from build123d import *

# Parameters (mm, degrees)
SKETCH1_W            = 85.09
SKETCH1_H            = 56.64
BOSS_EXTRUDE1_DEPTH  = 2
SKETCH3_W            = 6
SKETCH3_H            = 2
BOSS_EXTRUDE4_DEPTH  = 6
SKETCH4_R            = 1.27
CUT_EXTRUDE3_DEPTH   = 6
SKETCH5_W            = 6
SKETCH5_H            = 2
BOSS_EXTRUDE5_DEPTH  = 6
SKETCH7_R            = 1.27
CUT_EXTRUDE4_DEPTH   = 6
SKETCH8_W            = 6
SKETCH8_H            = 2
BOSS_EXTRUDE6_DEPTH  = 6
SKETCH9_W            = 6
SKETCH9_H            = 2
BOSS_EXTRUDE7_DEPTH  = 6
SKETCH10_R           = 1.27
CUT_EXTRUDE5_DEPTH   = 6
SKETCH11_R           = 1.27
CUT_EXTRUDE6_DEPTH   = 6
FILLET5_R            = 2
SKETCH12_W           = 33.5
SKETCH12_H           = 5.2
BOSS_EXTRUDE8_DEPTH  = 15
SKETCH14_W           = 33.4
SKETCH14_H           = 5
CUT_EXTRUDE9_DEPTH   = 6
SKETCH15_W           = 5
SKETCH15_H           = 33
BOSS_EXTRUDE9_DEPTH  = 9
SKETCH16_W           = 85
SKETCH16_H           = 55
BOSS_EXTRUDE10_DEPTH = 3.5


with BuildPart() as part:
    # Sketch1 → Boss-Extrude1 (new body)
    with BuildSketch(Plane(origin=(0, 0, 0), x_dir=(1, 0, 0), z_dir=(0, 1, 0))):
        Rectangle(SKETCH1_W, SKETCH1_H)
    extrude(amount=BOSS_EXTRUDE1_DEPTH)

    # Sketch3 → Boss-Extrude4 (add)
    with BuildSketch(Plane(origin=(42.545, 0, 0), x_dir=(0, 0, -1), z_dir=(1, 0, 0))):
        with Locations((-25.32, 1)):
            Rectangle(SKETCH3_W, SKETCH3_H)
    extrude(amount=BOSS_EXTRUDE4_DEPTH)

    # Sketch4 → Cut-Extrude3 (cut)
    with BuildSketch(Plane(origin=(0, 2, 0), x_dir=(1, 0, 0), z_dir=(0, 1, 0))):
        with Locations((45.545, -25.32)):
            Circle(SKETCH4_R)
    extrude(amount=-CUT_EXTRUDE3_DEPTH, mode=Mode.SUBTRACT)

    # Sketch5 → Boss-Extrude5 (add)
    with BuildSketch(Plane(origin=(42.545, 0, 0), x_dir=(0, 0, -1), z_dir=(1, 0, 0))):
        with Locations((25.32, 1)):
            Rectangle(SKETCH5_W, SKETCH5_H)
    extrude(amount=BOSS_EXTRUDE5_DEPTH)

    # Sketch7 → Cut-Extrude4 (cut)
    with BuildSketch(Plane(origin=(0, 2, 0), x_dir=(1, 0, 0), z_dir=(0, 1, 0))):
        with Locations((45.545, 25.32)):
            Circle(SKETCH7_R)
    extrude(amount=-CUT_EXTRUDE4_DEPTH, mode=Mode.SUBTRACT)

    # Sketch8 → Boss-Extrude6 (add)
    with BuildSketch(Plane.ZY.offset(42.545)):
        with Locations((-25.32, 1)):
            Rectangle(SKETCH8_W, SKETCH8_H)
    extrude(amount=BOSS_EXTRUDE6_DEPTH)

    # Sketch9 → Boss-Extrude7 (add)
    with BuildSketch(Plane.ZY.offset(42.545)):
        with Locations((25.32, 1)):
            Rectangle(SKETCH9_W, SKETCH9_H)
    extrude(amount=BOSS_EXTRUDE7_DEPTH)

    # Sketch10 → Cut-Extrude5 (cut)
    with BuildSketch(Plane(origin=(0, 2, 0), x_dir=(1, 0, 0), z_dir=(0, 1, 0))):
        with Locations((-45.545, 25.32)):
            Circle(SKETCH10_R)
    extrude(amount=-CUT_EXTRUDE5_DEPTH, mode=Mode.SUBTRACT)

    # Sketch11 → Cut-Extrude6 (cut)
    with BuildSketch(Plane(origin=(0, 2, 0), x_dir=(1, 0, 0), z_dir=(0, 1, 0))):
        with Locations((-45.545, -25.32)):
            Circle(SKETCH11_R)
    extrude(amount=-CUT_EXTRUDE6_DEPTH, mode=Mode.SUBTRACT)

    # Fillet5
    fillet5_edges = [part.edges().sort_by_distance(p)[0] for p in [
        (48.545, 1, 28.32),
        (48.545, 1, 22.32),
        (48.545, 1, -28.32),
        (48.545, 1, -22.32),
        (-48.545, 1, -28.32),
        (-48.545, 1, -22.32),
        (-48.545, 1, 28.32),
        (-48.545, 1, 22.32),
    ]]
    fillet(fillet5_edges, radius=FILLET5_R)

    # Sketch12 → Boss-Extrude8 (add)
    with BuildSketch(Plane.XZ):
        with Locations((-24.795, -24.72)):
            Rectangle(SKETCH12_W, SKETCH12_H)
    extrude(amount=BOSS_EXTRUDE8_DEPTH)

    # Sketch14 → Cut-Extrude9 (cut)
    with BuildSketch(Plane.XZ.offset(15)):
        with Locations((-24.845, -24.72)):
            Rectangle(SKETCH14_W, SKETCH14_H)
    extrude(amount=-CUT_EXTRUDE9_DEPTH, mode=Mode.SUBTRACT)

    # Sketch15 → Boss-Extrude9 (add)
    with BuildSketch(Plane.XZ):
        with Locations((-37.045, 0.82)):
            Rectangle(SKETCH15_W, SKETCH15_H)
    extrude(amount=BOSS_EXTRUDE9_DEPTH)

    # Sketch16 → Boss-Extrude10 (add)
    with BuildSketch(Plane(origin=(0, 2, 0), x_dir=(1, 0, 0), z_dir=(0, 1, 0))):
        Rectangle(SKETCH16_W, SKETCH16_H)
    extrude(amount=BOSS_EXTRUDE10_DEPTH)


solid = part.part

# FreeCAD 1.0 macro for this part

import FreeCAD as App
import Part
import Sketcher
Q = App.Units.Quantity


def edges_at(feature, points):
    """Names of the edges that pass closest to the given points."""
    edges = feature.Shape.Edges
    near = lambda p: min(range(len(edges)), key=lambda i: edges[i].distToShape(Part.Vertex(*p))[0])
    return sorted({f"Edge{near(p) + 1}" for p in points})

doc = App.newDocument("Part")
params = doc.addObject("Spreadsheet::Sheet", "Params")
for row, (alias, value) in enumerate([
    ("sketch1_width", "85.09 mm"),
    ("sketch1_height", "56.64 mm"),
    ("pad1_length", "2 mm"),
    ("sketch2_width", "2 mm"),
    ("sketch2_height", "6 mm"),
    ("pad2_length", "6 mm"),
    ("sketch3_diameter", "2.54 mm"),
    ("pocket1_length", "6 mm"),
    ("sketch4_width", "2 mm"),
    ("sketch4_height", "6 mm"),
    ("pad3_length", "6 mm"),
    ("sketch5_diameter", "2.54 mm"),
    ("pocket2_length", "6 mm"),
    ("sketch6_width", "2 mm"),
    ("sketch6_height", "6 mm"),
    ("pad4_length", "6 mm"),
    ("sketch7_width", "2 mm"),
    ("sketch7_height", "6 mm"),
    ("pad5_length", "6 mm"),
    ("sketch8_diameter", "2.54 mm"),
    ("pocket3_length", "6 mm"),
    ("sketch9_diameter", "2.54 mm"),
    ("pocket4_length", "6 mm"),
    ("fillet_radius", "2 mm"),
    ("sketch10_width", "33.5 mm"),
    ("sketch10_height", "5.2 mm"),
    ("pad6_length", "15 mm"),
    ("sketch11_height", "5 mm"),
    ("sketch11_width", "33.4 mm"),
    ("pocket5_length", "6 mm"),
    ("sketch12_width", "5 mm"),
    ("sketch12_height", "33 mm"),
    ("pad7_length", "9 mm"),
    ("sketch13_width", "85 mm"),
    ("sketch13_height", "55 mm"),
    ("pad8_length", "3.5 mm"),
], start=1):
    params.set(f"A{row}", alias)
    params.set(f"B{row}", "=" + value)
    params.setAlias(f"B{row}", alias)

body = doc.addObject("PartDesign::Body", "Body")

# Sketch on XZ plane
sketch1 = body.newObject("Sketcher::SketchObject", "Sketch")
sketch1.AttachmentSupport = (doc.getObject("XZ_Plane"), [""])
sketch1.MapMode = "FlatFace"
sketch1.addGeometry([
    Part.LineSegment(App.Vector(-43, -28, 0), App.Vector(-43, 28, 0)),
    Part.LineSegment(App.Vector(-43, 28, 0), App.Vector(43, 28, 0)),
    Part.LineSegment(App.Vector(43, 28, 0), App.Vector(43, -28, 0)),
    Part.LineSegment(App.Vector(43, -28, 0), App.Vector(-43, -28, 0)),
], False)
sketch1.addConstraint([
    Sketcher.Constraint("Coincident", 0, 2, 1, 1),
    Sketcher.Constraint("Coincident", 1, 2, 2, 1),
    Sketcher.Constraint("Coincident", 2, 2, 3, 1),
    Sketcher.Constraint("Coincident", 3, 2, 0, 1),
    Sketcher.Constraint("Vertical", 0),
    Sketcher.Constraint("Horizontal", 1),
    Sketcher.Constraint("Vertical", 2),
    Sketcher.Constraint("Horizontal", 3),
    Sketcher.Constraint("Symmetric", 0, 2, 2, 2, -1, 1),
    Sketcher.Constraint("DistanceX", 1, 1, 1, 2, Q("85.09 mm")),
    Sketcher.Constraint("DistanceY", 0, 1, 0, 2, Q("56.64 mm")),
])
sketch1.setExpression("Constraints[9]", "Params.sketch1_width")
sketch1.setExpression("Constraints[10]", "Params.sketch1_height")
pad1 = body.newObject("PartDesign::Pad", "Pad")
pad1.Profile = sketch1
pad1.setExpression("Length", "Params.pad1_length")
pad1.Reversed = True

# Sketch on YZ plane
sketch2 = body.newObject("Sketcher::SketchObject", "Sketch001")
sketch2.AttachmentSupport = (doc.getObject("YZ_Plane"), [""])
sketch2.MapMode = "FlatFace"
sketch2.AttachmentOffset = App.Placement(App.Vector(0, 0, 42.545), App.Rotation())
sketch2.addGeometry([
    Part.LineSegment(App.Vector(2, 28.3, 0), App.Vector(0, 28.3, 0)),
    Part.LineSegment(App.Vector(0, 28.3, 0), App.Vector(0, 22.3, 0)),
    Part.LineSegment(App.Vector(0, 22.3, 0), App.Vector(2, 22.3, 0)),
    Part.LineSegment(App.Vector(2, 22.3, 0), App.Vector(2, 28.3, 0)),
], False)
sketch2.addConstraint([
    Sketcher.Constraint("Coincident", 0, 2, 1, 1),
    Sketcher.Constraint("Coincident", 1, 2, 2, 1),
    Sketcher.Constraint("Coincident", 2, 2, 3, 1),
    Sketcher.Constraint("Coincident", 3, 2, 0, 1),
    Sketcher.Constraint("Horizontal", 0),
    Sketcher.Constraint("Vertical", 1),
    Sketcher.Constraint("Horizontal", 2),
    Sketcher.Constraint("Vertical", 3),
    Sketcher.Constraint("PointOnObject", 0, 2, -2),
    Sketcher.Constraint("DistanceX", 0, 2, 0, 1, Q("2 mm")),
    Sketcher.Constraint("DistanceY", 1, 2, 1, 1, Q("6 mm")),
    Sketcher.Constraint("DistanceY", -1, 1, 0, 2, Q("28.32 mm")),
])
sketch2.setExpression("Constraints[9]", "Params.sketch2_width")
sketch2.setExpression("Constraints[10]", "Params.sketch2_height")
pad2 = body.newObject("PartDesign::Pad", "Pad001")
pad2.Profile = sketch2
pad2.setExpression("Length", "Params.pad2_length")

# Sketch on XZ plane
sketch3 = body.newObject("Sketcher::SketchObject", "Sketch002")
sketch3.AttachmentSupport = (doc.getObject("XZ_Plane"), [""])
sketch3.MapMode = "FlatFace"
sketch3.AttachmentOffset = App.Placement(App.Vector(0, 0, -2), App.Rotation())
sketch3.addGeometry(Part.Circle(App.Vector(45.5, 25.3, 0), App.Vector(0, 0, 1), 1.3), False)
sketch3.addConstraint([
    Sketcher.Constraint("Diameter", 0, Q("2.54 mm")),
    Sketcher.Constraint("DistanceY", -1, 1, 0, 3, Q("25.32 mm")),
    Sketcher.Constraint("DistanceX", -1, 1, 0, 3, Q("45.545 mm")),
])
sketch3.setExpression("Constraints[0]", "Params.sketch3_diameter")
pocket1 = body.newObject("PartDesign::Pocket", "Pocket")
pocket1.Profile = sketch3
pocket1.setExpression("Length", "Params.pocket1_length")
pocket1.Reversed = True

# Sketch on YZ plane
sketch4 = body.newObject("Sketcher::SketchObject", "Sketch003")
sketch4.AttachmentSupport = (doc.getObject("YZ_Plane"), [""])
sketch4.MapMode = "FlatFace"
sketch4.AttachmentOffset = App.Placement(App.Vector(0, 0, 42.545), App.Rotation())
sketch4.addGeometry([
    Part.LineSegment(App.Vector(2, -22.3, 0), App.Vector(0, -22.3, 0)),
    Part.LineSegment(App.Vector(0, -22.3, 0), App.Vector(0, -28.3, 0)),
    Part.LineSegment(App.Vector(0, -28.3, 0), App.Vector(2, -28.3, 0)),
    Part.LineSegment(App.Vector(2, -28.3, 0), App.Vector(2, -22.3, 0)),
], False)
sketch4.addConstraint([
    Sketcher.Constraint("Coincident", 0, 2, 1, 1),
    Sketcher.Constraint("Coincident", 1, 2, 2, 1),
    Sketcher.Constraint("Coincident", 2, 2, 3, 1),
    Sketcher.Constraint("Coincident", 3, 2, 0, 1),
    Sketcher.Constraint("Horizontal", 0),
    Sketcher.Constraint("Vertical", 1),
    Sketcher.Constraint("Horizontal", 2),
    Sketcher.Constraint("Vertical", 3),
    Sketcher.Constraint("PointOnObject", 0, 2, -2),
    Sketcher.Constraint("DistanceX", 0, 2, 0, 1, Q("2 mm")),
    Sketcher.Constraint("DistanceY", 1, 2, 1, 1, Q("6 mm")),
    Sketcher.Constraint("DistanceY", 0, 2, -1, 1, Q("22.32 mm")),
])
sketch4.setExpression("Constraints[9]", "Params.sketch4_width")
sketch4.setExpression("Constraints[10]", "Params.sketch4_height")
pad3 = body.newObject("PartDesign::Pad", "Pad002")
pad3.Profile = sketch4
pad3.setExpression("Length", "Params.pad3_length")

# Sketch on XZ plane
sketch5 = body.newObject("Sketcher::SketchObject", "Sketch004")
sketch5.AttachmentSupport = (doc.getObject("XZ_Plane"), [""])
sketch5.MapMode = "FlatFace"
sketch5.AttachmentOffset = App.Placement(App.Vector(0, 0, -2), App.Rotation())
sketch5.addGeometry(Part.Circle(App.Vector(45.5, -25.3, 0), App.Vector(0, 0, 1), 1.3), False)
sketch5.addConstraint([
    Sketcher.Constraint("Diameter", 0, Q("2.54 mm")),
    Sketcher.Constraint("DistanceY", 0, 3, -1, 1, Q("25.32 mm")),
    Sketcher.Constraint("DistanceX", -1, 1, 0, 3, Q("45.545 mm")),
])
sketch5.setExpression("Constraints[0]", "Params.sketch5_diameter")
pocket2 = body.newObject("PartDesign::Pocket", "Pocket001")
pocket2.Profile = sketch5
pocket2.setExpression("Length", "Params.pocket2_length")
pocket2.Reversed = True

# Sketch on YZ plane
sketch6 = body.newObject("Sketcher::SketchObject", "Sketch005")
sketch6.AttachmentSupport = (doc.getObject("YZ_Plane"), [""])
sketch6.MapMode = "FlatFace"
sketch6.AttachmentOffset = App.Placement(App.Vector(0, 0, -42.545), App.Rotation())
sketch6.addGeometry([
    Part.LineSegment(App.Vector(2, -28.3, 0), App.Vector(0, -28.3, 0)),
    Part.LineSegment(App.Vector(0, -28.3, 0), App.Vector(0, -22.3, 0)),
    Part.LineSegment(App.Vector(0, -22.3, 0), App.Vector(2, -22.3, 0)),
    Part.LineSegment(App.Vector(2, -22.3, 0), App.Vector(2, -28.3, 0)),
], False)
sketch6.addConstraint([
    Sketcher.Constraint("Coincident", 0, 2, 1, 1),
    Sketcher.Constraint("Coincident", 1, 2, 2, 1),
    Sketcher.Constraint("Coincident", 2, 2, 3, 1),
    Sketcher.Constraint("Coincident", 3, 2, 0, 1),
    Sketcher.Constraint("Horizontal", 0),
    Sketcher.Constraint("Vertical", 1),
    Sketcher.Constraint("Horizontal", 2),
    Sketcher.Constraint("Vertical", 3),
    Sketcher.Constraint("PointOnObject", 0, 2, -2),
    Sketcher.Constraint("DistanceX", 0, 2, 0, 1, Q("2 mm")),
    Sketcher.Constraint("DistanceY", 1, 1, 1, 2, Q("6 mm")),
    Sketcher.Constraint("DistanceY", 0, 2, -1, 1, Q("28.32 mm")),
])
sketch6.setExpression("Constraints[9]", "Params.sketch6_width")
sketch6.setExpression("Constraints[10]", "Params.sketch6_height")
pad4 = body.newObject("PartDesign::Pad", "Pad003")
pad4.Profile = sketch6
pad4.setExpression("Length", "Params.pad4_length")
pad4.Reversed = True

# Sketch on YZ plane
sketch7 = body.newObject("Sketcher::SketchObject", "Sketch006")
sketch7.AttachmentSupport = (doc.getObject("YZ_Plane"), [""])
sketch7.MapMode = "FlatFace"
sketch7.AttachmentOffset = App.Placement(App.Vector(0, 0, -42.545), App.Rotation())
sketch7.addGeometry([
    Part.LineSegment(App.Vector(2, 22.3, 0), App.Vector(0, 22.3, 0)),
    Part.LineSegment(App.Vector(0, 22.3, 0), App.Vector(0, 28.3, 0)),
    Part.LineSegment(App.Vector(0, 28.3, 0), App.Vector(2, 28.3, 0)),
    Part.LineSegment(App.Vector(2, 28.3, 0), App.Vector(2, 22.3, 0)),
], False)
sketch7.addConstraint([
    Sketcher.Constraint("Coincident", 0, 2, 1, 1),
    Sketcher.Constraint("Coincident", 1, 2, 2, 1),
    Sketcher.Constraint("Coincident", 2, 2, 3, 1),
    Sketcher.Constraint("Coincident", 3, 2, 0, 1),
    Sketcher.Constraint("Horizontal", 0),
    Sketcher.Constraint("Vertical", 1),
    Sketcher.Constraint("Horizontal", 2),
    Sketcher.Constraint("Vertical", 3),
    Sketcher.Constraint("PointOnObject", 0, 2, -2),
    Sketcher.Constraint("DistanceX", 0, 2, 0, 1, Q("2 mm")),
    Sketcher.Constraint("DistanceY", 1, 1, 1, 2, Q("6 mm")),
    Sketcher.Constraint("DistanceY", -1, 1, 0, 2, Q("22.32 mm")),
])
sketch7.setExpression("Constraints[9]", "Params.sketch7_width")
sketch7.setExpression("Constraints[10]", "Params.sketch7_height")
pad5 = body.newObject("PartDesign::Pad", "Pad004")
pad5.Profile = sketch7
pad5.setExpression("Length", "Params.pad5_length")
pad5.Reversed = True

# Sketch on XZ plane
sketch8 = body.newObject("Sketcher::SketchObject", "Sketch007")
sketch8.AttachmentSupport = (doc.getObject("XZ_Plane"), [""])
sketch8.MapMode = "FlatFace"
sketch8.AttachmentOffset = App.Placement(App.Vector(0, 0, -2), App.Rotation())
sketch8.addGeometry(Part.Circle(App.Vector(-45.5, -25.3, 0), App.Vector(0, 0, 1), 1.3), False)
sketch8.addConstraint([
    Sketcher.Constraint("Diameter", 0, Q("2.54 mm")),
    Sketcher.Constraint("DistanceY", 0, 3, -1, 1, Q("25.32 mm")),
    Sketcher.Constraint("DistanceX", 0, 3, -1, 1, Q("45.545 mm")),
])
sketch8.setExpression("Constraints[0]", "Params.sketch8_diameter")
pocket3 = body.newObject("PartDesign::Pocket", "Pocket002")
pocket3.Profile = sketch8
pocket3.setExpression("Length", "Params.pocket3_length")
pocket3.Reversed = True

# Sketch on XZ plane
sketch9 = body.newObject("Sketcher::SketchObject", "Sketch008")
sketch9.AttachmentSupport = (doc.getObject("XZ_Plane"), [""])
sketch9.MapMode = "FlatFace"
sketch9.AttachmentOffset = App.Placement(App.Vector(0, 0, -2), App.Rotation())
sketch9.addGeometry(Part.Circle(App.Vector(-45.5, 25.3, 0), App.Vector(0, 0, 1), 1.3), False)
sketch9.addConstraint([
    Sketcher.Constraint("Diameter", 0, Q("2.54 mm")),
    Sketcher.Constraint("DistanceY", -1, 1, 0, 3, Q("25.32 mm")),
    Sketcher.Constraint("DistanceX", 0, 3, -1, 1, Q("45.545 mm")),
])
sketch9.setExpression("Constraints[0]", "Params.sketch9_diameter")
pocket4 = body.newObject("PartDesign::Pocket", "Pocket003")
pocket4.Profile = sketch9
pocket4.setExpression("Length", "Params.pocket4_length")
pocket4.Reversed = True
doc.recompute()

fillet = body.newObject("PartDesign::Fillet", "Fillet")
fillet.Base = (pocket4, edges_at(pocket4, [
    (48.545, 1, 28.32),
    (48.545, 1, 22.32),
    (48.545, 1, -28.32),
    (48.545, 1, -22.32),
    (-48.545, 1, -28.32),
    (-48.545, 1, -22.32),
    (-48.545, 1, 28.32),
    (-48.545, 1, 22.32),
]))
fillet.setExpression("Radius", "Params.fillet_radius")

# Sketch on XZ plane
sketch10 = body.newObject("Sketcher::SketchObject", "Sketch009")
sketch10.AttachmentSupport = (doc.getObject("XZ_Plane"), [""])
sketch10.MapMode = "FlatFace"
sketch10.addGeometry([
    Part.LineSegment(App.Vector(-42, -22, 0), App.Vector(-42, -27, 0)),
    Part.LineSegment(App.Vector(-42, -27, 0), App.Vector(-8, -27, 0)),
    Part.LineSegment(App.Vector(-8, -27, 0), App.Vector(-8, -22, 0)),
    Part.LineSegment(App.Vector(-8, -22, 0), App.Vector(-42, -22, 0)),
], False)
sketch10.addConstraint([
    Sketcher.Constraint("Coincident", 0, 2, 1, 1),
    Sketcher.Constraint("Coincident", 1, 2, 2, 1),
    Sketcher.Constraint("Coincident", 2, 2, 3, 1),
    Sketcher.Constraint("Coincident", 3, 2, 0, 1),
    Sketcher.Constraint("Vertical", 0),
    Sketcher.Constraint("Horizontal", 1),
    Sketcher.Constraint("Vertical", 2),
    Sketcher.Constraint("Horizontal", 3),
    Sketcher.Constraint("DistanceX", 1, 1, 1, 2, Q("33.5 mm")),
    Sketcher.Constraint("DistanceY", 0, 2, 0, 1, Q("5.2 mm")),
    Sketcher.Constraint("DistanceY", 0, 2, -1, 1, Q("27.32 mm")),
    Sketcher.Constraint("DistanceX", 0, 2, -1, 1, Q("41.545 mm")),
])
sketch10.setExpression("Constraints[8]", "Params.sketch10_width")
sketch10.setExpression("Constraints[9]", "Params.sketch10_height")
pad6 = body.newObject("PartDesign::Pad", "Pad005")
pad6.Profile = sketch10
pad6.setExpression("Length", "Params.pad6_length")

# Sketch on XZ plane
sketch11 = body.newObject("Sketcher::SketchObject", "Sketch010")
sketch11.AttachmentSupport = (doc.getObject("XZ_Plane"), [""])
sketch11.MapMode = "FlatFace"
sketch11.AttachmentOffset = App.Placement(App.Vector(0, 0, 15), App.Rotation())
sketch11.addGeometry([
    Part.LineSegment(App.Vector(-42, -22, 0), App.Vector(-42, -27, 0)),
    Part.LineSegment(App.Vector(-42, -27, 0), App.Vector(-8, -27, 0)),
    Part.LineSegment(App.Vector(-8, -27, 0), App.Vector(-8, -22, 0)),
    Part.LineSegment(App.Vector(-8, -22, 0), App.Vector(-42, -22, 0)),
], False)
sketch11.addConstraint([
    Sketcher.Constraint("Coincident", 0, 2, 1, 1),
    Sketcher.Constraint("Coincident", 1, 2, 2, 1),
    Sketcher.Constraint("Coincident", 2, 2, 3, 1),
    Sketcher.Constraint("Coincident", 3, 2, 0, 1),
    Sketcher.Constraint("Vertical", 0),
    Sketcher.Constraint("Horizontal", 1),
    Sketcher.Constraint("Vertical", 2),
    Sketcher.Constraint("Horizontal", 3),
    Sketcher.Constraint("DistanceY", 0, 2, 0, 1, Q("5 mm")),
    Sketcher.Constraint("DistanceX", 1, 1, 1, 2, Q("33.4 mm")),
    Sketcher.Constraint("DistanceY", 0, 2, -1, 1, Q("27.22 mm")),
    Sketcher.Constraint("DistanceX", 0, 2, -1, 1, Q("41.545 mm")),
])
sketch11.setExpression("Constraints[8]", "Params.sketch11_height")
sketch11.setExpression("Constraints[9]", "Params.sketch11_width")
pocket5 = body.newObject("PartDesign::Pocket", "Pocket004")
pocket5.Profile = sketch11
pocket5.setExpression("Length", "Params.pocket5_length")

# Sketch on XZ plane
sketch12 = body.newObject("Sketcher::SketchObject", "Sketch011")
sketch12.AttachmentSupport = (doc.getObject("XZ_Plane"), [""])
sketch12.MapMode = "FlatFace"
sketch12.addGeometry([
    Part.LineSegment(App.Vector(-40, 17, 0), App.Vector(-40, -16, 0)),
    Part.LineSegment(App.Vector(-40, -16, 0), App.Vector(-35, -16, 0)),
    Part.LineSegment(App.Vector(-35, -16, 0), App.Vector(-35, 17, 0)),
    Part.LineSegment(App.Vector(-35, 17, 0), App.Vector(-40, 17, 0)),
], False)
sketch12.addConstraint([
    Sketcher.Constraint("Coincident", 0, 2, 1, 1),
    Sketcher.Constraint("Coincident", 1, 2, 2, 1),
    Sketcher.Constraint("Coincident", 2, 2, 3, 1),
    Sketcher.Constraint("Coincident", 3, 2, 0, 1),
    Sketcher.Constraint("Vertical", 0),
    Sketcher.Constraint("Horizontal", 1),
    Sketcher.Constraint("Vertical", 2),
    Sketcher.Constraint("Horizontal", 3),
    Sketcher.Constraint("DistanceX", 1, 1, 1, 2, Q("5 mm")),
    Sketcher.Constraint("DistanceY", 0, 2, 0, 1, Q("33 mm")),
    Sketcher.Constraint("DistanceY", 0, 2, -1, 1, Q("15.68 mm")),
    Sketcher.Constraint("DistanceX", 0, 2, -1, 1, Q("39.545 mm")),
])
sketch12.setExpression("Constraints[8]", "Params.sketch12_width")
sketch12.setExpression("Constraints[9]", "Params.sketch12_height")
pad7 = body.newObject("PartDesign::Pad", "Pad006")
pad7.Profile = sketch12
pad7.setExpression("Length", "Params.pad7_length")

# Sketch on XZ plane
sketch13 = body.newObject("Sketcher::SketchObject", "Sketch012")
sketch13.AttachmentSupport = (doc.getObject("XZ_Plane"), [""])
sketch13.MapMode = "FlatFace"
sketch13.AttachmentOffset = App.Placement(App.Vector(0, 0, -2), App.Rotation())
sketch13.addGeometry([
    Part.LineSegment(App.Vector(-42, -28, 0), App.Vector(-42, 28, 0)),
    Part.LineSegment(App.Vector(-42, 28, 0), App.Vector(42, 28, 0)),
    Part.LineSegment(App.Vector(42, 28, 0), App.Vector(42, -28, 0)),
    Part.LineSegment(App.Vector(42, -28, 0), App.Vector(-42, -28, 0)),
], False)
sketch13.addConstraint([
    Sketcher.Constraint("Coincident", 0, 2, 1, 1),
    Sketcher.Constraint("Coincident", 1, 2, 2, 1),
    Sketcher.Constraint("Coincident", 2, 2, 3, 1),
    Sketcher.Constraint("Coincident", 3, 2, 0, 1),
    Sketcher.Constraint("Vertical", 0),
    Sketcher.Constraint("Horizontal", 1),
    Sketcher.Constraint("Vertical", 2),
    Sketcher.Constraint("Horizontal", 3),
    Sketcher.Constraint("Symmetric", 0, 2, 2, 2, -1, 1),
    Sketcher.Constraint("DistanceX", 1, 1, 1, 2, Q("85 mm")),
    Sketcher.Constraint("DistanceY", 0, 1, 0, 2, Q("55 mm")),
])
sketch13.setExpression("Constraints[9]", "Params.sketch13_width")
sketch13.setExpression("Constraints[10]", "Params.sketch13_height")
pad8 = body.newObject("PartDesign::Pad", "Pad007")
pad8.Profile = sketch13
pad8.setExpression("Length", "Params.pad8_length")
pad8.Reversed = True

doc.recompute()
